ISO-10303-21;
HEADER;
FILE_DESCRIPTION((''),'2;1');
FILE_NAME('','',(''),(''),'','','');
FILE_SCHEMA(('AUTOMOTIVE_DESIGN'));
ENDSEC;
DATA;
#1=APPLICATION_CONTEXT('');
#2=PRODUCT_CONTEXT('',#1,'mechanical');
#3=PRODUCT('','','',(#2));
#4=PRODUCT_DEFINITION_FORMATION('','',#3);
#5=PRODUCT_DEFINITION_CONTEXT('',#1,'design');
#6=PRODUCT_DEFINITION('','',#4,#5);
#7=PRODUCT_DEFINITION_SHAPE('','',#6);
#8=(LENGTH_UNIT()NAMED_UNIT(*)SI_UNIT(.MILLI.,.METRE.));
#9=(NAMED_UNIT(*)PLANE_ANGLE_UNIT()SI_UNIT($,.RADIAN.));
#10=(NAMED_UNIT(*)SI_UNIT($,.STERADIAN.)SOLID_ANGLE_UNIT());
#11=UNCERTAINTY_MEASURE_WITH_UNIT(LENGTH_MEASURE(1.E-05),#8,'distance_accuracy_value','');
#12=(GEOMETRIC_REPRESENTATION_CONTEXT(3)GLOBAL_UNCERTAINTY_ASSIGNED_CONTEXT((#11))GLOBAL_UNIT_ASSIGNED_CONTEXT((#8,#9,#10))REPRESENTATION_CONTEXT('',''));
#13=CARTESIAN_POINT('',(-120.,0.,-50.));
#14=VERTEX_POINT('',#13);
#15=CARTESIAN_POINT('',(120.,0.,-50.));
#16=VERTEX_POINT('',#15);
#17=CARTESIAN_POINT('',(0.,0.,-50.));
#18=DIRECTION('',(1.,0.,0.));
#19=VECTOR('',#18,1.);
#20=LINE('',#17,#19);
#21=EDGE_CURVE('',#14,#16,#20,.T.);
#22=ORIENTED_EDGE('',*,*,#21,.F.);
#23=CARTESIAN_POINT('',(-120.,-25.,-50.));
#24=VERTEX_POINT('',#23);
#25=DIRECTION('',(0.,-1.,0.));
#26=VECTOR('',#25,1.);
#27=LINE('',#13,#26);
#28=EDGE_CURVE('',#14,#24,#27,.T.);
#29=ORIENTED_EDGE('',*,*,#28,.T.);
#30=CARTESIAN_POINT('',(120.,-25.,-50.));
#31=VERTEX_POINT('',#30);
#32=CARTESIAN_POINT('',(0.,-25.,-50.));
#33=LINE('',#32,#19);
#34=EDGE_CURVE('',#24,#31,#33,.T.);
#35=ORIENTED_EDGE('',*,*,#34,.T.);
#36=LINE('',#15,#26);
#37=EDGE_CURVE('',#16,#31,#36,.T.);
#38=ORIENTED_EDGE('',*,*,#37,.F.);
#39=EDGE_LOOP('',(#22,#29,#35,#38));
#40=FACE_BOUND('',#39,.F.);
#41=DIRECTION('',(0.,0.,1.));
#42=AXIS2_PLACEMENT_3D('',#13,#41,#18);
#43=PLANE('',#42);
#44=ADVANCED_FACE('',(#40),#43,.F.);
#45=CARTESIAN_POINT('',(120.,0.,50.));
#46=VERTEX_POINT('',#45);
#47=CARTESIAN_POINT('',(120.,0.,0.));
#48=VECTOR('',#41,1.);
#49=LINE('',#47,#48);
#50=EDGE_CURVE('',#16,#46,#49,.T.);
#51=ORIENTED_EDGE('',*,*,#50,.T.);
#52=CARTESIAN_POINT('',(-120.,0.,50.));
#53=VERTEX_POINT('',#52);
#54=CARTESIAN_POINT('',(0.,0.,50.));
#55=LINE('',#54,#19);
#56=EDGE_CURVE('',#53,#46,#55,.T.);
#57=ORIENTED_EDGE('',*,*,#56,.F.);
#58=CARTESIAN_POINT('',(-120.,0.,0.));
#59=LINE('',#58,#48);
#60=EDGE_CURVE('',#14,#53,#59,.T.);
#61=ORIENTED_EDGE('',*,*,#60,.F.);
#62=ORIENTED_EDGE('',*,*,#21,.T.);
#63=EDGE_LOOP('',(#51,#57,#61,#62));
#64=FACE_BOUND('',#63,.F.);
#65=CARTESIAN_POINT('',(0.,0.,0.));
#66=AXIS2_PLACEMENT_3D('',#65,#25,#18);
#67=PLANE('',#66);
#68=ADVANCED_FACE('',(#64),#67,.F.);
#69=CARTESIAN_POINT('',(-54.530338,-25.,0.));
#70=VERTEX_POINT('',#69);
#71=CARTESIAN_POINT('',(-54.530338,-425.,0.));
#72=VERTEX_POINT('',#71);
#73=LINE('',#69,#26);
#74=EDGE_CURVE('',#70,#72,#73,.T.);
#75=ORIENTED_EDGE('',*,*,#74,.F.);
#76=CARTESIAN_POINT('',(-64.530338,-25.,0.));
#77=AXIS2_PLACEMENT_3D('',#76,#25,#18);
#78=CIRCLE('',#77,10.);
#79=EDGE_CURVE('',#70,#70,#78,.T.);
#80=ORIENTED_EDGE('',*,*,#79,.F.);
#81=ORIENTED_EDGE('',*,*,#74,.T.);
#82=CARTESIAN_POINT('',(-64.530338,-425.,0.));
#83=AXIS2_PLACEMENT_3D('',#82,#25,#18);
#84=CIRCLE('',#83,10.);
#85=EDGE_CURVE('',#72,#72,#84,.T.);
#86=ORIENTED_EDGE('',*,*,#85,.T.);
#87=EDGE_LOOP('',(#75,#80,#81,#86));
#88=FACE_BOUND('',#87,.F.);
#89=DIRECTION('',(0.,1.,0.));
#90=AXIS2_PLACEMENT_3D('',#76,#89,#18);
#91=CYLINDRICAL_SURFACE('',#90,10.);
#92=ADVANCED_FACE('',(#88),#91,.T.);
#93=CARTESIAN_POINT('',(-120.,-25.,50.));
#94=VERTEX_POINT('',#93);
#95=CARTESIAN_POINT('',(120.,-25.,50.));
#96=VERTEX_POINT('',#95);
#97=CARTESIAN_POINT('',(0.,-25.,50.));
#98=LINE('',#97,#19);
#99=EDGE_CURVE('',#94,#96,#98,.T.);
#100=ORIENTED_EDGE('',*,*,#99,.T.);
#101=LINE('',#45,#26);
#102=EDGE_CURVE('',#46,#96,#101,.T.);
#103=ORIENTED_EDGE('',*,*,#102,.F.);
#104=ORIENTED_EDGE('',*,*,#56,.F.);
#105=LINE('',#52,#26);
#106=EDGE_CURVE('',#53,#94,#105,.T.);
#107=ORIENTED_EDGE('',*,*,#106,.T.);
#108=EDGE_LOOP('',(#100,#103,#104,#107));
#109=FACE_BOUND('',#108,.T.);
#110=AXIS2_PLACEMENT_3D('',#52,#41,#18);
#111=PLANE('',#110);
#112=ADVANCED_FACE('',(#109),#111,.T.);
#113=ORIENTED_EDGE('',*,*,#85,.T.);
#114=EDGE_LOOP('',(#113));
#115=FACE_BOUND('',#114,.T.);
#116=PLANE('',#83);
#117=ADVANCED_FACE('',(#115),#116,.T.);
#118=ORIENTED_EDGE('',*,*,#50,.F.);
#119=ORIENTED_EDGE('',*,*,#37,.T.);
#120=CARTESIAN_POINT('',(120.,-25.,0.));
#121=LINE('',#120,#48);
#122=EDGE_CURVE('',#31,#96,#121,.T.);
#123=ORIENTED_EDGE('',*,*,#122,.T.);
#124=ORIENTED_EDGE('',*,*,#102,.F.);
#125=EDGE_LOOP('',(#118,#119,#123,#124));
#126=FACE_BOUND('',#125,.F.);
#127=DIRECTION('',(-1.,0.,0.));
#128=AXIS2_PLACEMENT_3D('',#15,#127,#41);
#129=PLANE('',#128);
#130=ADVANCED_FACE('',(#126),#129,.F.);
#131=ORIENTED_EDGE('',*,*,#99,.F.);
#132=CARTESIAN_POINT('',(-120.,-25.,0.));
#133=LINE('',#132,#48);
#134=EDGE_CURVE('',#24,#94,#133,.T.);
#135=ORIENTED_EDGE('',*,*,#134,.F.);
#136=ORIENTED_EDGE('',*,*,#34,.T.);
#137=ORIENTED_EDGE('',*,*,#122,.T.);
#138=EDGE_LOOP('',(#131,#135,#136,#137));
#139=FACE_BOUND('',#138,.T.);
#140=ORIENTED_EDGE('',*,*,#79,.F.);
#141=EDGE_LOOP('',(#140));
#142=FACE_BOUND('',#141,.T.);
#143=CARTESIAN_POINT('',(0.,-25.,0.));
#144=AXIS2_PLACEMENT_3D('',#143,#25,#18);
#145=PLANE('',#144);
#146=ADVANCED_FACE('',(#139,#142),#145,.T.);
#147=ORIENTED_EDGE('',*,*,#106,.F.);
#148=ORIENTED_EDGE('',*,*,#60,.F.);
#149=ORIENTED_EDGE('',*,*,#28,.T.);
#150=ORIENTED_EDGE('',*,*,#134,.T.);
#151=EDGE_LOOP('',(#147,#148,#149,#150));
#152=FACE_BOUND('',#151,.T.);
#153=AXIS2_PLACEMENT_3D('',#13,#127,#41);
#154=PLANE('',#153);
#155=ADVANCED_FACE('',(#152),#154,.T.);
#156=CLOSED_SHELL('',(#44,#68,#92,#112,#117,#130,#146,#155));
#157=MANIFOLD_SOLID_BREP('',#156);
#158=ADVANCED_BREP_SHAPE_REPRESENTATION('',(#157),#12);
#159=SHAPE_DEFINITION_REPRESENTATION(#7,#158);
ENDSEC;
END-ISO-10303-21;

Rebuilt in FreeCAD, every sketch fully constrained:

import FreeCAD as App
import Part
import Sketcher
Q = App.Units.Quantity


def add_polygon(sketch, points):
    """Adds a closed chain of lines whose ends are joined by coincident constraints."""
    first, n = sketch.GeometryCount, len(points)
    for a, b in zip(points, points[1:] + points[:1]):
        sketch.addGeometry(Part.LineSegment(App.Vector(*a, 0), App.Vector(*b, 0)), False)
    for i in range(n):
        sketch.addConstraint(Sketcher.Constraint("Coincident", first + i, 2, first + (i + 1) % n, 1))

doc = App.newDocument("Part")
body = doc.addObject("PartDesign::Body", "Body")

# Sketch on XZ plane
sketch1 = body.newObject("Sketcher::SketchObject", "Sketch")
sketch1.AttachmentSupport = (doc.getObject("XZ_Plane"), [""])
sketch1.MapMode = "FlatFace"
add_polygon(sketch1, [(-120, 50), (-120, -50), (120, -50), (120, 50)])  # lines 0-3
sketch1.addConstraint(Sketcher.Constraint("Vertical", 0))
sketch1.addConstraint(Sketcher.Constraint("Horizontal", 1))
sketch1.addConstraint(Sketcher.Constraint("Vertical", 2))
sketch1.addConstraint(Sketcher.Constraint("Horizontal", 3))
sketch1.addConstraint(Sketcher.Constraint("Symmetric", 0, 2, 2, 2, -1, 1))
sketch1.addConstraint(Sketcher.Constraint("DistanceX", 1, 1, 1, 2, Q("240 mm")))
sketch1.addConstraint(Sketcher.Constraint("DistanceY", 0, 2, 0, 1, Q("100 mm")))
pad1 = body.newObject("PartDesign::Pad", "Pad")
pad1.Profile = sketch1
pad1.Length = 25

# Sketch on XZ plane
sketch2 = body.newObject("Sketcher::SketchObject", "Sketch001")
sketch2.AttachmentSupport = (doc.getObject("XZ_Plane"), [""])
sketch2.MapMode = "FlatFace"
sketch2.AttachmentOffset = App.Placement(App.Vector(0, 0, 25), App.Rotation())
sketch2.addGeometry(Part.Circle(App.Vector(-65, 0, 0), App.Vector(0, 0, 1), 10), False)
sketch2.addConstraint(Sketcher.Constraint("PointOnObject", 0, 3, -1))
sketch2.addConstraint(Sketcher.Constraint("Diameter", 0, Q("20 mm")))
sketch2.addConstraint(Sketcher.Constraint("DistanceX", 0, 3, -1, 1, Q("64.530338 mm")))
pad2 = body.newObject("PartDesign::Pad", "Pad001")
pad2.Profile = sketch2
pad2.Length = 400

doc.recompute()
